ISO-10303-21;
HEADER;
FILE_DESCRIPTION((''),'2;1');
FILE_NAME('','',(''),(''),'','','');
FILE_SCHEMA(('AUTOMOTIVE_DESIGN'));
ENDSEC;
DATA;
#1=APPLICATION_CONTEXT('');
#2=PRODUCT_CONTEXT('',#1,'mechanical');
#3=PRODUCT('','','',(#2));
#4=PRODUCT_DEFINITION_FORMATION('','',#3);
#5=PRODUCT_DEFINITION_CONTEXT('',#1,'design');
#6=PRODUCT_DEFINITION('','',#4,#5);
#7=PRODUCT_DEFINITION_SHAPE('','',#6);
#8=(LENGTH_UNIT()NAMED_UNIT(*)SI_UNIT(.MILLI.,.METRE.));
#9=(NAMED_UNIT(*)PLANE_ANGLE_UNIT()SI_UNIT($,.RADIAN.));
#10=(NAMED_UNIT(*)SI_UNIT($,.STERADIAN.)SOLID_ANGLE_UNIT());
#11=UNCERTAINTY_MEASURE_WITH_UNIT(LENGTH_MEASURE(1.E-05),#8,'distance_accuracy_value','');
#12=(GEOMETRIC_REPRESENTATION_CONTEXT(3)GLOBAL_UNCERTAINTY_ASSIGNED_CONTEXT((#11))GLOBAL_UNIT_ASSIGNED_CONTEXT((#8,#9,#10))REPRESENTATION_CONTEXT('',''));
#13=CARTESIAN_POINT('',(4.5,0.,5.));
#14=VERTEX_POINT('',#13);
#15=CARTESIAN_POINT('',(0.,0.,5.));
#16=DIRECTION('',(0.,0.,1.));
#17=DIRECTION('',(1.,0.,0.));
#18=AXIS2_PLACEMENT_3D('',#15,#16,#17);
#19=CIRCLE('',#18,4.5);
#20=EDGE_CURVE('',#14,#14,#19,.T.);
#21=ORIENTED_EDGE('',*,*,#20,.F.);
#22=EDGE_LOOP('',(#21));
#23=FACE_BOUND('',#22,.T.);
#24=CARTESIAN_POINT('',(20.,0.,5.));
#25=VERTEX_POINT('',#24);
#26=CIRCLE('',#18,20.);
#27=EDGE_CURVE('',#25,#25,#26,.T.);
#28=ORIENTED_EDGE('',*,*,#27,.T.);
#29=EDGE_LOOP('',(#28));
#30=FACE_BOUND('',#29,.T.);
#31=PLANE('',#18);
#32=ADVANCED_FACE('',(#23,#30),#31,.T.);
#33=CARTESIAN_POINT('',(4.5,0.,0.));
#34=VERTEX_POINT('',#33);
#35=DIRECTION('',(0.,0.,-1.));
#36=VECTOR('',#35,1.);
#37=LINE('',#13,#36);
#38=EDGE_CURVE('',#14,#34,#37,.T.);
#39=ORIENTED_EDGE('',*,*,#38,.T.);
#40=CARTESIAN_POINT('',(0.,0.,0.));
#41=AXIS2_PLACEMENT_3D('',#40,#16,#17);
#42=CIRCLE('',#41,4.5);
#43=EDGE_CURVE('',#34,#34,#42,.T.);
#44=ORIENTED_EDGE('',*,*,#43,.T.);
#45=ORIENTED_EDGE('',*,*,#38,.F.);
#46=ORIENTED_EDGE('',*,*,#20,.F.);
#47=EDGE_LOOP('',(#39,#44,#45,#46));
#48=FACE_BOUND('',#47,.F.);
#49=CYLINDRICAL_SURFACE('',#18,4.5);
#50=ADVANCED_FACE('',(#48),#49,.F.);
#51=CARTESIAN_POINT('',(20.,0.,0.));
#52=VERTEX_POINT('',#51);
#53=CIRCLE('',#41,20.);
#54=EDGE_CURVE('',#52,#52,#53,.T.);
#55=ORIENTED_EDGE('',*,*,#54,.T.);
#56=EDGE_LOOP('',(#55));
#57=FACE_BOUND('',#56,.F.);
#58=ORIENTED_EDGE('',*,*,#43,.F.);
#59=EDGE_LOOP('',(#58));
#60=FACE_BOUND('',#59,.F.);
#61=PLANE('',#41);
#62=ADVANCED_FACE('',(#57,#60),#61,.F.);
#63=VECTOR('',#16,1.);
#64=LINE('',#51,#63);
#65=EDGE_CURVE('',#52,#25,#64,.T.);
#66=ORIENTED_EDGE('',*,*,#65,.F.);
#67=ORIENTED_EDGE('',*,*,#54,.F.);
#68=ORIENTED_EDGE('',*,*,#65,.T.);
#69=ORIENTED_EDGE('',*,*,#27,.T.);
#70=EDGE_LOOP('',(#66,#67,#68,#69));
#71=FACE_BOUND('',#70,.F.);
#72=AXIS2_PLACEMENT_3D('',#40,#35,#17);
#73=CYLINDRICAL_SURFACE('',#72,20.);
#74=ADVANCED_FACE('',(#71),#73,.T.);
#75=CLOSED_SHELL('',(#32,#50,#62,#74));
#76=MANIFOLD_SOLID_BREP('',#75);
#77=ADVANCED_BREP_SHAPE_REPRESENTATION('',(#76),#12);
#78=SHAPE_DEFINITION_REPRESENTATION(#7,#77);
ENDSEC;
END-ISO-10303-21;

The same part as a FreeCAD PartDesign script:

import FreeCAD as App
import Part
import Sketcher
Q = App.Units.Quantity

doc = App.newDocument("Part")
body = doc.addObject("PartDesign::Body", "Body")

sketch1 = body.newObject("Sketcher::SketchObject", "Sketch")
sketch1.AttachmentSupport = (doc.getObject("XY_Plane"), [""])
sketch1.MapMode = "FlatFace"
sketch1.addGeometry(Part.Circle(App.Vector(0, 0, 0), App.Vector(0, 0, 1), 20), False)
sketch1.addConstraint(Sketcher.Constraint("Coincident", 0, 3, -1, 1))
sketch1.addConstraint(Sketcher.Constraint("Diameter", 0, Q("40 mm")))
pad1 = body.newObject("PartDesign::Pad", "Pad")
pad1.Profile = sketch1
pad1.Length = 5

sketch2 = body.newObject("Sketcher::SketchObject", "Sketch001")
sketch2.AttachmentSupport = (doc.getObject("XY_Plane"), [""])
sketch2.MapMode = "FlatFace"
sketch2.AttachmentOffset = App.Placement(App.Vector(0, 0, 5), App.Rotation())
sketch2.addGeometry(Part.Circle(App.Vector(0, 0, 0), App.Vector(0, 0, 1), 4.5), False)
sketch2.addConstraint(Sketcher.Constraint("Coincident", 0, 3, -1, 1))
sketch2.addConstraint(Sketcher.Constraint("Diameter", 0, Q("9 mm")))
pocket1 = body.newObject("PartDesign::Pocket", "Pocket")
pocket1.Profile = sketch2
pocket1.Length = 5

doc.recompute()
